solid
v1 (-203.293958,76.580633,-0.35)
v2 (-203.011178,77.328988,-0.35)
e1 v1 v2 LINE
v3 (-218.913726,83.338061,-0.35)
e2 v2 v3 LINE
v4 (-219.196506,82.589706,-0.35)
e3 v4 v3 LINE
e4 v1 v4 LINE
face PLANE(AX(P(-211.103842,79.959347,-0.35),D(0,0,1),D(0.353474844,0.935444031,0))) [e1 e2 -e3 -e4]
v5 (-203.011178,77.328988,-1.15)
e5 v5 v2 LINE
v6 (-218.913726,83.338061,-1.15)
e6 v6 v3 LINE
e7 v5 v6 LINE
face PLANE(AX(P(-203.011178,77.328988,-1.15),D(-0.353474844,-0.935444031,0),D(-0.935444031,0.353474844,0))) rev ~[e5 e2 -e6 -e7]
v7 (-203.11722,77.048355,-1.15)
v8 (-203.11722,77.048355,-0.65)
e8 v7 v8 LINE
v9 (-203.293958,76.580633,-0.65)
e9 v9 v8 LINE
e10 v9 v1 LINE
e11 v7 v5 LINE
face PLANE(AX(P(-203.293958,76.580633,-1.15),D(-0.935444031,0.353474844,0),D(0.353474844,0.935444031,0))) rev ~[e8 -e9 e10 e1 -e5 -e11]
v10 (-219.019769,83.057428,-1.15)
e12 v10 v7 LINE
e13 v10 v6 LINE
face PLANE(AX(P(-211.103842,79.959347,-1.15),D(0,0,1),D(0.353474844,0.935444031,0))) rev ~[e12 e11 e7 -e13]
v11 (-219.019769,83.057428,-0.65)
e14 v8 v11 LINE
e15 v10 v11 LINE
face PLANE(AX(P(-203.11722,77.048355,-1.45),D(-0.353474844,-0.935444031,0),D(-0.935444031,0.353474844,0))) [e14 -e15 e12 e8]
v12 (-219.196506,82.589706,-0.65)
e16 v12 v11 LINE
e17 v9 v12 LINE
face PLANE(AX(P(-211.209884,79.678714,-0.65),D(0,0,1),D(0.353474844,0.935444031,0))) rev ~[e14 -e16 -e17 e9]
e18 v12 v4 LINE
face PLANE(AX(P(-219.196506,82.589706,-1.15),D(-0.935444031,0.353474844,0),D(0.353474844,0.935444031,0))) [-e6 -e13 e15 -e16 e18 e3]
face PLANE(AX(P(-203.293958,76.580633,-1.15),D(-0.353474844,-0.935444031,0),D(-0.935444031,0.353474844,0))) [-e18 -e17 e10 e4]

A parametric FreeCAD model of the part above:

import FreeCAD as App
import Part
import Sketcher

V = App.Vector
Q = App.Units.Quantity

doc = App.newDocument("Part")
body = doc.addObject("PartDesign::Body", "Body")

# Sketch on XY plane
sketch1 = doc.addObject("Sketcher::SketchObject", "Sketch")
body.addObject(sketch1)
sketch1.AttachmentSupport = (doc.XY_Plane, [""])
sketch1.MapMode = "FlatFace"
sketch1.addGeometry(Part.LineSegment(V(0, 17, 0), V(0, 0, 0)), False)
sketch1.addGeometry(Part.LineSegment(V(0, 0, 0), V(0.8, 0, 0)), False)
sketch1.addGeometry(Part.LineSegment(V(0.8, 0, 0), V(0.8, 17, 0)), False)
sketch1.addGeometry(Part.LineSegment(V(0.8, 17, 0), V(0, 17, 0)), False)
sketch1.addConstraint(Sketcher.Constraint("Coincident", 0, 2, 1, 1))
sketch1.addConstraint(Sketcher.Constraint("Coincident", 1, 2, 2, 1))
sketch1.addConstraint(Sketcher.Constraint("Coincident", 2, 2, 3, 1))
sketch1.addConstraint(Sketcher.Constraint("Coincident", 3, 2, 0, 1))
sketch1.addConstraint(Sketcher.Constraint("Vertical", 0))
sketch1.addConstraint(Sketcher.Constraint("Horizontal", 1))
sketch1.addConstraint(Sketcher.Constraint("Vertical", 2))
sketch1.addConstraint(Sketcher.Constraint("Horizontal", 3))
sketch1.addConstraint(Sketcher.Constraint("Coincident", 0, 2, -1, 1))
sketch1.addConstraint(Sketcher.Constraint("DistanceY", 0, 2, 0, 1, Q("17 mm")))
sketch1.addConstraint(Sketcher.Constraint("DistanceX", 1, 1, 1, 2, Q("0.8 mm")))
pad1 = doc.addObject("PartDesign::Pad", "Pad")
body.addObject(pad1)
pad1.Profile = sketch1
pad1.Length = 0.8
body2 = doc.addObject("PartDesign::Body", "Body001")

# Sketch on XY plane
sketch2 = doc.addObject("Sketcher::SketchObject", "Sketch001")
body2.addObject(sketch2)
sketch2.AttachmentSupport = (doc.getObject("XY_Plane001"), [""])
sketch2.MapMode = "FlatFace"
sketch2.AttachmentOffset = App.Placement(V(0, 0, 0.3), App.Rotation())
sketch2.addGeometry(Part.LineSegment(V(0.3, 17, 0), V(0.3, 0, 0)), False)
sketch2.addGeometry(Part.LineSegment(V(0.3, 0, 0), V(1.1, 0, 0)), False)
sketch2.addGeometry(Part.LineSegment(V(1.1, 0, 0), V(1.1, 17, 0)), False)
sketch2.addGeometry(Part.LineSegment(V(1.1, 17, 0), V(0.3, 17, 0)), False)
sketch2.addConstraint(Sketcher.Constraint("Coincident", 0, 2, 1, 1))
sketch2.addConstraint(Sketcher.Constraint("Coincident", 1, 2, 2, 1))
sketch2.addConstraint(Sketcher.Constraint("Coincident", 2, 2, 3, 1))
sketch2.addConstraint(Sketcher.Constraint("Coincident", 3, 2, 0, 1))
sketch2.addConstraint(Sketcher.Constraint("Vertical", 0))
sketch2.addConstraint(Sketcher.Constraint("Horizontal", 1))
sketch2.addConstraint(Sketcher.Constraint("Vertical", 2))
sketch2.addConstraint(Sketcher.Constraint("Horizontal", 3))
sketch2.addConstraint(Sketcher.Constraint("PointOnObject", 0, 2, -1))
sketch2.addConstraint(Sketcher.Constraint("DistanceY", 0, 2, 0, 1, Q("17 mm")))
sketch2.addConstraint(Sketcher.Constraint("DistanceX", 1, 1, 1, 2, Q("0.8 mm")))
sketch2.addConstraint(Sketcher.Constraint("DistanceX", -1, 1, 0, 2, Q("0.3 mm")))
pad2 = doc.addObject("PartDesign::Pad", "Pad001")
body2.addObject(pad2)
pad2.Profile = sketch2
pad2.Length = 0.8
doc.recompute()

boolean = doc.addObject("PartDesign::Boolean", "Boolean")
body2.addObject(boolean)
boolean.Type = "Cut"
boolean.addObjects([body])
body3 = doc.addObject("PartDesign::Body", "Body002")
doc.recompute()

body2.Placement = App.Placement(V(-203.4, 76.3, -1.45), App.Rotation(V(0, 0, 1), 69.3))
boolean2 = doc.addObject("PartDesign::Boolean", "Boolean001")
body3.addObject(boolean2)
boolean2.Type = "Fuse"
boolean2.addObjects([body2])

doc.recompute()
